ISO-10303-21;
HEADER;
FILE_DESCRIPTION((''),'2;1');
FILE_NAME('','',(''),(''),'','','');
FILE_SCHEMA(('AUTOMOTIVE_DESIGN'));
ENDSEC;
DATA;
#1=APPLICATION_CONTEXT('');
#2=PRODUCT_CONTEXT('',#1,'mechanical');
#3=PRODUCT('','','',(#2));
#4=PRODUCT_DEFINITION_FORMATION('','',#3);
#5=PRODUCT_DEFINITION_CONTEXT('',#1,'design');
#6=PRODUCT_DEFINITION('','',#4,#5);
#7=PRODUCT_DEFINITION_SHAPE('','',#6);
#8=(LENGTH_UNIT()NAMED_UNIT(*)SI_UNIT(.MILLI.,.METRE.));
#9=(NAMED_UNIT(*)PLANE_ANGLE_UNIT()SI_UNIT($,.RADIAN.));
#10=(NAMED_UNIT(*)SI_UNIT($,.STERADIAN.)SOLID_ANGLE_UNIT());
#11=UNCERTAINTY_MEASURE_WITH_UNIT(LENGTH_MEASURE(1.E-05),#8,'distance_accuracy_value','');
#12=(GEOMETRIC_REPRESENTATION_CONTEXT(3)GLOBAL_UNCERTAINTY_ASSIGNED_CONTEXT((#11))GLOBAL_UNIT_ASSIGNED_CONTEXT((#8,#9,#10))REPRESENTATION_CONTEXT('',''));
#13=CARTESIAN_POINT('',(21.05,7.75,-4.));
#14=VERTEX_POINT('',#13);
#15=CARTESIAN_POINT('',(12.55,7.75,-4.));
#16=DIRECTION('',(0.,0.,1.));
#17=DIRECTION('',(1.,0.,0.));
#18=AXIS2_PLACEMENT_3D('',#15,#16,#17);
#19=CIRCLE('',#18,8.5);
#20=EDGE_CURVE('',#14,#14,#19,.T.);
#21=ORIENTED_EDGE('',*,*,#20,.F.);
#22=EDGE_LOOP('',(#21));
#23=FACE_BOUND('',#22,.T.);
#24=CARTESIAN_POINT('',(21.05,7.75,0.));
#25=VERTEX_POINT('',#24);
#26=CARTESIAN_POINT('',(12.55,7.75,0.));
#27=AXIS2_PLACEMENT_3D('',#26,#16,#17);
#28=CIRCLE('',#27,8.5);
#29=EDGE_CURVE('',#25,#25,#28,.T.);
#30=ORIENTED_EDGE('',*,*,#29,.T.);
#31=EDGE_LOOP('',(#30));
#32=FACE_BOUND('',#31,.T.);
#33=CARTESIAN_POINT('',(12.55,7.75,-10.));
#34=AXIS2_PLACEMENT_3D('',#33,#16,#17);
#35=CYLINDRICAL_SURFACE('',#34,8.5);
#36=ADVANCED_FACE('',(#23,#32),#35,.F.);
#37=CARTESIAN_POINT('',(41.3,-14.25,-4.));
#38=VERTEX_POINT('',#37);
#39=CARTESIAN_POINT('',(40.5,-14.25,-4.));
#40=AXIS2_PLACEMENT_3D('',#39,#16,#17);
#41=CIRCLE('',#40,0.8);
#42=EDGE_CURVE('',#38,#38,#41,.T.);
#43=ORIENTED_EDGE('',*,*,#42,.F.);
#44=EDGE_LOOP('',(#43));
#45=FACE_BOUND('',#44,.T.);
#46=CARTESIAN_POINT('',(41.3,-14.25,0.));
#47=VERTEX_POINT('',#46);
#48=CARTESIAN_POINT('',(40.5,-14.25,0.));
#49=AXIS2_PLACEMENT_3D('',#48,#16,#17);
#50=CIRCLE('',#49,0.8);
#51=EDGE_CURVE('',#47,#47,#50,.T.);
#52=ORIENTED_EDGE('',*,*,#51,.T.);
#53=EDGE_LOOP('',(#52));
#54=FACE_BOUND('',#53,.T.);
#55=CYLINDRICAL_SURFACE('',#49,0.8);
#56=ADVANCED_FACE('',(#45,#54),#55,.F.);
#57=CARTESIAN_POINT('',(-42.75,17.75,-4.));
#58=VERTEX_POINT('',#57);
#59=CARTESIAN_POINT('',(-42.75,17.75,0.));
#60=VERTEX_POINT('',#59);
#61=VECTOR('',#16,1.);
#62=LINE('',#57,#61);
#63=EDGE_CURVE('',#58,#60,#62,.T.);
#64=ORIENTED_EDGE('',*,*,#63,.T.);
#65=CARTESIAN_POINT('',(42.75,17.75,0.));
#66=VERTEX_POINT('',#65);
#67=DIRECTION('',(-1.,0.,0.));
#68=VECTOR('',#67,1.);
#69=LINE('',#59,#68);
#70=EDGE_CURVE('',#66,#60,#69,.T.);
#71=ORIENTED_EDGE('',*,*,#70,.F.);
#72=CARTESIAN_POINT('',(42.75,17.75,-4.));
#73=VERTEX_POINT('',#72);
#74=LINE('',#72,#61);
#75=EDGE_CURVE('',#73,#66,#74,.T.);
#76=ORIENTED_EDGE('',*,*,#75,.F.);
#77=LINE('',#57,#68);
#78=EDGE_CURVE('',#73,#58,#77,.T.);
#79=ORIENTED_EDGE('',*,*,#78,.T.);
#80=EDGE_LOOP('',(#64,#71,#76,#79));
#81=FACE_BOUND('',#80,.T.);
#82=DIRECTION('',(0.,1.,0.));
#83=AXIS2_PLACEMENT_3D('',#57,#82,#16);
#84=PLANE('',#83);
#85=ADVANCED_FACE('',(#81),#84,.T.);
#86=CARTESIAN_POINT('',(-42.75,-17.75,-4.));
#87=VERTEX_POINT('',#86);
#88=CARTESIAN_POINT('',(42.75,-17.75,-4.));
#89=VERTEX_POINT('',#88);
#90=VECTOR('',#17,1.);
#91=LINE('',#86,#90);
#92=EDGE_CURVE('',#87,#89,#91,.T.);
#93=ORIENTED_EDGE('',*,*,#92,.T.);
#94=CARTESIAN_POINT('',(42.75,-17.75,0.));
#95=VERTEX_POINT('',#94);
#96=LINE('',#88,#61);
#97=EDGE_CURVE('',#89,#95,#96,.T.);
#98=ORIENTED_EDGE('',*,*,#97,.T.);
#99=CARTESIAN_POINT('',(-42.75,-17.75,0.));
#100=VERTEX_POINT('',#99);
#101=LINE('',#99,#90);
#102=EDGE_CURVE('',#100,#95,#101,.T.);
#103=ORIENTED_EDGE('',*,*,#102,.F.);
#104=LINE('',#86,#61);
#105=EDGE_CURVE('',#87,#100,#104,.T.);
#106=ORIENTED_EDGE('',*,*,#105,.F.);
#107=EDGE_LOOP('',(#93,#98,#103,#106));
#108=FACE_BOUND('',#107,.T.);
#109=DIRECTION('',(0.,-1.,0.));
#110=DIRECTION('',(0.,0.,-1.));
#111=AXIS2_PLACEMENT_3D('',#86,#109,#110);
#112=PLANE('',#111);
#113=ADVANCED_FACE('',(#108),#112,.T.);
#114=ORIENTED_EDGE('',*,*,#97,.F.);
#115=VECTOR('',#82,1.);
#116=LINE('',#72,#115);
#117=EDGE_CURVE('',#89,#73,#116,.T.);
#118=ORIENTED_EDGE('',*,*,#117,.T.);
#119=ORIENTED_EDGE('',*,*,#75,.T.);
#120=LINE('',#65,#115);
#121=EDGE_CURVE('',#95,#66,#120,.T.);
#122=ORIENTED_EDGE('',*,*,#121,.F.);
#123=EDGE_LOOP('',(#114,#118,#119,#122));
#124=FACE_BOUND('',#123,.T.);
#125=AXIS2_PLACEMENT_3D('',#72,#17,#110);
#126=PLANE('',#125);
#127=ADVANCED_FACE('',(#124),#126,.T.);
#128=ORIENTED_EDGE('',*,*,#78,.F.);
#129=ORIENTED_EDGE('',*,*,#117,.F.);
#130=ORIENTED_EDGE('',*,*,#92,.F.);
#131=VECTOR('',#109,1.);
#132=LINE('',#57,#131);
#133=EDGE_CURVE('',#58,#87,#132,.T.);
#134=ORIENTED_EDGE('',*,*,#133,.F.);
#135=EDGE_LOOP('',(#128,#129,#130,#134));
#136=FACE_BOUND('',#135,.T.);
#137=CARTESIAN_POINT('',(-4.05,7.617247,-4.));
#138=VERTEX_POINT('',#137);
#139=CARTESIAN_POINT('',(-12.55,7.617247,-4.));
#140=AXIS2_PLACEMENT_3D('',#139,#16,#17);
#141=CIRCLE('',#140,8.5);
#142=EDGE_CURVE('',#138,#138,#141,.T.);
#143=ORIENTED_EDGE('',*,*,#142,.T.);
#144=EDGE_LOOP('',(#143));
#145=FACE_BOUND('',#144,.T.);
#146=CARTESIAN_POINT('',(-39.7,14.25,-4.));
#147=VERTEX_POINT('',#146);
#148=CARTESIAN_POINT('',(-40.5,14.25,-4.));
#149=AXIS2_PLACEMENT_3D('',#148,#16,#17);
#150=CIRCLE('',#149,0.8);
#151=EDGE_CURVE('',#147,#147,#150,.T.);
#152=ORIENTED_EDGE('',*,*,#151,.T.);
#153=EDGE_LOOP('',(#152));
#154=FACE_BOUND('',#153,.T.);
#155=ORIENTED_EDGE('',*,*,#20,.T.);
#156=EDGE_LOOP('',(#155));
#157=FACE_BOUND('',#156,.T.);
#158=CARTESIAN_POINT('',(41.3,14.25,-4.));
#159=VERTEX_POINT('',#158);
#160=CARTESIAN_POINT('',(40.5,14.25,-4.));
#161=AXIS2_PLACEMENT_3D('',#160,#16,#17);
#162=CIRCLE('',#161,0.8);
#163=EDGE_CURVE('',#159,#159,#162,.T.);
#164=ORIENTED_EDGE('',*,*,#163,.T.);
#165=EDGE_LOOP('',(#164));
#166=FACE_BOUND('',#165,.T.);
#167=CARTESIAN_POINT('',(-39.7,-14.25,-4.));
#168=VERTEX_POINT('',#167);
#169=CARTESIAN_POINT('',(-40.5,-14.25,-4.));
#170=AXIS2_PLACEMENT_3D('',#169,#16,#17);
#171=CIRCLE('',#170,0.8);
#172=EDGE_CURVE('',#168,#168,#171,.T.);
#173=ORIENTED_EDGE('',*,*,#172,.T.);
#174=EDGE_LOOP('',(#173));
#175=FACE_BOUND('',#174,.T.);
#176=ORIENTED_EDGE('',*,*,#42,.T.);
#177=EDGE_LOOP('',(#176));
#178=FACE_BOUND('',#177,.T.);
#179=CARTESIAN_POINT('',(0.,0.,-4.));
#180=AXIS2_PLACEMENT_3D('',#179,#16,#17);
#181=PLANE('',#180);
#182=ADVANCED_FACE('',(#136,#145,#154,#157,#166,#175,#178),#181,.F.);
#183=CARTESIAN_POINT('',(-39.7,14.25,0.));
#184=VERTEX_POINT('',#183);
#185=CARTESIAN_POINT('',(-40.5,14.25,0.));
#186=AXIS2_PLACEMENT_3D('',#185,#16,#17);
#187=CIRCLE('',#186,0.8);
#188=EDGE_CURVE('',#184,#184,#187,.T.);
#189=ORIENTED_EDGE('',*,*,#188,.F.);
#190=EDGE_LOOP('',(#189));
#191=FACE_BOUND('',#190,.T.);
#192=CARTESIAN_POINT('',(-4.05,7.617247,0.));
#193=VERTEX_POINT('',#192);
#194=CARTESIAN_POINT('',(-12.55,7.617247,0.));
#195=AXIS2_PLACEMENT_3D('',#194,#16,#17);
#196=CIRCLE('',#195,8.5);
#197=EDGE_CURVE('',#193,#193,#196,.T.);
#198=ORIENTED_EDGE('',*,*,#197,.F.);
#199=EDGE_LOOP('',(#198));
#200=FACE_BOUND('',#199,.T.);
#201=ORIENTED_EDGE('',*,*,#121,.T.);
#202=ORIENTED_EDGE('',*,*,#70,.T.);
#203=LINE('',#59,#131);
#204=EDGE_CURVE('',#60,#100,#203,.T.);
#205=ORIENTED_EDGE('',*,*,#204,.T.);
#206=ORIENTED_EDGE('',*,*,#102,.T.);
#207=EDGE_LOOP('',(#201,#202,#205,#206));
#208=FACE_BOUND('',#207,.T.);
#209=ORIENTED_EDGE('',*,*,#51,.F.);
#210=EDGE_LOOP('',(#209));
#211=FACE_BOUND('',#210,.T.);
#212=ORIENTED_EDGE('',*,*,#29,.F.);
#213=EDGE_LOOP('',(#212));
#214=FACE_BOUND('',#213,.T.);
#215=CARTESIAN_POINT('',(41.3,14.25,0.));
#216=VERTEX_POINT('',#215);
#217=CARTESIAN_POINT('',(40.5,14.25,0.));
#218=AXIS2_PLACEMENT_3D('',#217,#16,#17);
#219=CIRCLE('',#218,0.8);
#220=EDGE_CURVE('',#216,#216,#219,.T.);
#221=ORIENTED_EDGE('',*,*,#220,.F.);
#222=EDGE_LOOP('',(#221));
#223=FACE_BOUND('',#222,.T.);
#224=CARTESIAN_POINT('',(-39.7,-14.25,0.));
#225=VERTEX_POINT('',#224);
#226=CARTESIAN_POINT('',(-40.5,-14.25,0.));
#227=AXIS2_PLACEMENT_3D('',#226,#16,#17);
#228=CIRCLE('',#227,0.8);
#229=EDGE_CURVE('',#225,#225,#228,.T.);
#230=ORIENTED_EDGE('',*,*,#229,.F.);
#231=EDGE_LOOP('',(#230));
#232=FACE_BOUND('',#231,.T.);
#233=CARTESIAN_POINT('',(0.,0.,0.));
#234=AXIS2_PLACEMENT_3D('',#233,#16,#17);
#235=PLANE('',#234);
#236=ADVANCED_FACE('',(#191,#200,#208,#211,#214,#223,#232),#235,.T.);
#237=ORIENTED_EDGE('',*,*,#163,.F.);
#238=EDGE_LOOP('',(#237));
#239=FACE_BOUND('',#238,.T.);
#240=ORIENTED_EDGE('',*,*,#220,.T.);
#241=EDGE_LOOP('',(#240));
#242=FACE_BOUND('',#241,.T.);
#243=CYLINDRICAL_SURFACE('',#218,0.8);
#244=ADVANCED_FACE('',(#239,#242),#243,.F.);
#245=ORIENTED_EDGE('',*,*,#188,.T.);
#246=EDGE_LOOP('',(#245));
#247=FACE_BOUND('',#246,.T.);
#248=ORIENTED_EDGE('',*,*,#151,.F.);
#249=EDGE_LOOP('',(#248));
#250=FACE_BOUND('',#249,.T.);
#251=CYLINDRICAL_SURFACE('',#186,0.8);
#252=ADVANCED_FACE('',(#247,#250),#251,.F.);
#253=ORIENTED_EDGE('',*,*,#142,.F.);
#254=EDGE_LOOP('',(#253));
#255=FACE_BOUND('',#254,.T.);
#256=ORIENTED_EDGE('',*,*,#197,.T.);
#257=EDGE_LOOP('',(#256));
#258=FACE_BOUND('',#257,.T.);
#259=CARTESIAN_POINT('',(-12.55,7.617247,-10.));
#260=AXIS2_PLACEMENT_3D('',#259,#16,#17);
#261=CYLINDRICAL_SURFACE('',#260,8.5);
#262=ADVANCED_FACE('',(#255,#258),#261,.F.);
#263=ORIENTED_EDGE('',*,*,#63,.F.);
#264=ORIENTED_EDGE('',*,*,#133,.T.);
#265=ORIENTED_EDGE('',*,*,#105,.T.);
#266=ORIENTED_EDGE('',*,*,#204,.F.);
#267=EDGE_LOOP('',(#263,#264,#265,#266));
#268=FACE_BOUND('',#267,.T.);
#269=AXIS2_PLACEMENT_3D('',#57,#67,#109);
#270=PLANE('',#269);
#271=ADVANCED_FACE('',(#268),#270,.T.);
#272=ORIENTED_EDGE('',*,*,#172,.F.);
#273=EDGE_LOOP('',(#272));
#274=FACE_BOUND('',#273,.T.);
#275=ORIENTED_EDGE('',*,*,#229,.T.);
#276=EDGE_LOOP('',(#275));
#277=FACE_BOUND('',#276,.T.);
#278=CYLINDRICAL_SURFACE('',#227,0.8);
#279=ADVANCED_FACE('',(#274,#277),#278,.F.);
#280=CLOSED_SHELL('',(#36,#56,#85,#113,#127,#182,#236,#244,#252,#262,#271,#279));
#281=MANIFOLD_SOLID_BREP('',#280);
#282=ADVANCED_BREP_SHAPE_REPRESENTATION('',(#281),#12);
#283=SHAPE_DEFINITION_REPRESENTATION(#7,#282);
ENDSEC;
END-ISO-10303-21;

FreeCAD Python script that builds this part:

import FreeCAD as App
import Part
import Sketcher

V = App.Vector

doc = App.newDocument("Part")
body = doc.addObject("PartDesign::Body", "Body")

# Sketch on XY plane
sketch1 = doc.addObject("Sketcher::SketchObject", "Sketch")
body.addObject(sketch1)
sketch1.AttachmentSupport = (doc.XY_Plane, [""])
sketch1.MapMode = "FlatFace"
sketch1.addGeometry([
    Part.LineSegment(V(-43, 18, 0), V(-43, -18, 0)),
    Part.LineSegment(V(-43, -18, 0), V(43, -18, 0)),
    Part.LineSegment(V(43, -18, 0), V(43, 18, 0)),
    Part.LineSegment(V(43, 18, 0), V(-43, 18, 0)),
], False)
sketch1.addConstraint([
    Sketcher.Constraint("Coincident", 0, 2, 1, 1),
    Sketcher.Constraint("Coincident", 1, 2, 2, 1),
    Sketcher.Constraint("Coincident", 2, 2, 3, 1),
    Sketcher.Constraint("Coincident", 3, 2, 0, 1),
    Sketcher.Constraint("Vertical", 0),
    Sketcher.Constraint("Horizontal", 1),
    Sketcher.Constraint("Vertical", 2),
    Sketcher.Constraint("Horizontal", 3),
    Sketcher.Constraint("Symmetric", 0, 2, 2, 2, -1, 1),
    Sketcher.Constraint("DistanceX", 1, 1, 1, 2, 85.5),
    Sketcher.Constraint("DistanceY", 0, 2, 0, 1, 35.5),
])
pad1 = doc.addObject("PartDesign::Pad", "Pad")
body.addObject(pad1)
pad1.Profile = sketch1
pad1.Length = 4
pad1.Reversed = True

# Sketch on XY plane
sketch2 = doc.addObject("Sketcher::SketchObject", "Sketch001")
body.addObject(sketch2)
sketch2.AttachmentSupport = (doc.XY_Plane, [""])
sketch2.MapMode = "FlatFace"
sketch2.addGeometry([
    Part.Circle(V(40.5, 14.2, 0), V(0, 0, 1), 0.8),
    Part.Circle(V(-40.5, 14.2, 0), V(0, 0, 1), 0.8),
    Part.Circle(V(40.5, -14.2, 0), V(0, 0, 1), 0.8),
    Part.Circle(V(-40.5, -14.2, 0), V(0, 0, 1), 0.8),
], False)
sketch2.addConstraint([
    Sketcher.Constraint("Equal", 0, 1),
    Sketcher.Constraint("Equal", 1, 2),
    Sketcher.Constraint("Equal", 2, 3),
    Sketcher.Constraint("Symmetric", 1, 3, 2, 3, -1, 1),
    Sketcher.Constraint("Symmetric", 0, 3, 3, 3, -1, 1),
    Sketcher.Constraint("Symmetric", 0, 3, 1, 3, -2),
    Sketcher.Constraint("Diameter", 0, 1.6),
    Sketcher.Constraint("DistanceX", 1, 3, 0, 3, 81.0),
    Sketcher.Constraint("DistanceY", 2, 3, 0, 3, 28.5),
])
doc.recompute()
hole = doc.addObject("PartDesign::Hole", "Hole")
body.addObject(hole)
hole.Profile = sketch2
hole.ThreadType = "None"
hole.Diameter = 1.6
hole.DepthType = "Dimension"
hole.Depth = 6
hole.DrillPoint = "Angled"
hole.DrillPointAngle = 118

# Sketch on XY plane
sketch3 = doc.addObject("Sketcher::SketchObject", "Sketch002")
body.addObject(sketch3)
sketch3.AttachmentSupport = (doc.XY_Plane, [""])
sketch3.MapMode = "FlatFace"
sketch3.addGeometry([
    Part.Circle(V(13, 8, 0), V(0, 0, 1), 8),
    Part.Circle(V(-13, 8, 0), V(0, 0, 1), 8),
], False)
sketch3.addConstraint([
    Sketcher.Constraint("Equal", 0, 1),
    Sketcher.Constraint("Diameter", 0, 17.0),
    Sketcher.Constraint("DistanceX", 1, 3, 0, 3, 25.1),
    Sketcher.Constraint("DistanceX", -1, 1, 0, 3, 12.55),
    Sketcher.Constraint("DistanceY", -1, 1, 0, 3, 7.75),
    Sketcher.Constraint("DistanceY", -1, 1, 1, 3, 7.617247),
])
pocket1 = doc.addObject("PartDesign::Pocket", "Pocket")
body.addObject(pocket1)
pocket1.Profile = sketch3
pocket1.Length = 10

doc.recompute()
